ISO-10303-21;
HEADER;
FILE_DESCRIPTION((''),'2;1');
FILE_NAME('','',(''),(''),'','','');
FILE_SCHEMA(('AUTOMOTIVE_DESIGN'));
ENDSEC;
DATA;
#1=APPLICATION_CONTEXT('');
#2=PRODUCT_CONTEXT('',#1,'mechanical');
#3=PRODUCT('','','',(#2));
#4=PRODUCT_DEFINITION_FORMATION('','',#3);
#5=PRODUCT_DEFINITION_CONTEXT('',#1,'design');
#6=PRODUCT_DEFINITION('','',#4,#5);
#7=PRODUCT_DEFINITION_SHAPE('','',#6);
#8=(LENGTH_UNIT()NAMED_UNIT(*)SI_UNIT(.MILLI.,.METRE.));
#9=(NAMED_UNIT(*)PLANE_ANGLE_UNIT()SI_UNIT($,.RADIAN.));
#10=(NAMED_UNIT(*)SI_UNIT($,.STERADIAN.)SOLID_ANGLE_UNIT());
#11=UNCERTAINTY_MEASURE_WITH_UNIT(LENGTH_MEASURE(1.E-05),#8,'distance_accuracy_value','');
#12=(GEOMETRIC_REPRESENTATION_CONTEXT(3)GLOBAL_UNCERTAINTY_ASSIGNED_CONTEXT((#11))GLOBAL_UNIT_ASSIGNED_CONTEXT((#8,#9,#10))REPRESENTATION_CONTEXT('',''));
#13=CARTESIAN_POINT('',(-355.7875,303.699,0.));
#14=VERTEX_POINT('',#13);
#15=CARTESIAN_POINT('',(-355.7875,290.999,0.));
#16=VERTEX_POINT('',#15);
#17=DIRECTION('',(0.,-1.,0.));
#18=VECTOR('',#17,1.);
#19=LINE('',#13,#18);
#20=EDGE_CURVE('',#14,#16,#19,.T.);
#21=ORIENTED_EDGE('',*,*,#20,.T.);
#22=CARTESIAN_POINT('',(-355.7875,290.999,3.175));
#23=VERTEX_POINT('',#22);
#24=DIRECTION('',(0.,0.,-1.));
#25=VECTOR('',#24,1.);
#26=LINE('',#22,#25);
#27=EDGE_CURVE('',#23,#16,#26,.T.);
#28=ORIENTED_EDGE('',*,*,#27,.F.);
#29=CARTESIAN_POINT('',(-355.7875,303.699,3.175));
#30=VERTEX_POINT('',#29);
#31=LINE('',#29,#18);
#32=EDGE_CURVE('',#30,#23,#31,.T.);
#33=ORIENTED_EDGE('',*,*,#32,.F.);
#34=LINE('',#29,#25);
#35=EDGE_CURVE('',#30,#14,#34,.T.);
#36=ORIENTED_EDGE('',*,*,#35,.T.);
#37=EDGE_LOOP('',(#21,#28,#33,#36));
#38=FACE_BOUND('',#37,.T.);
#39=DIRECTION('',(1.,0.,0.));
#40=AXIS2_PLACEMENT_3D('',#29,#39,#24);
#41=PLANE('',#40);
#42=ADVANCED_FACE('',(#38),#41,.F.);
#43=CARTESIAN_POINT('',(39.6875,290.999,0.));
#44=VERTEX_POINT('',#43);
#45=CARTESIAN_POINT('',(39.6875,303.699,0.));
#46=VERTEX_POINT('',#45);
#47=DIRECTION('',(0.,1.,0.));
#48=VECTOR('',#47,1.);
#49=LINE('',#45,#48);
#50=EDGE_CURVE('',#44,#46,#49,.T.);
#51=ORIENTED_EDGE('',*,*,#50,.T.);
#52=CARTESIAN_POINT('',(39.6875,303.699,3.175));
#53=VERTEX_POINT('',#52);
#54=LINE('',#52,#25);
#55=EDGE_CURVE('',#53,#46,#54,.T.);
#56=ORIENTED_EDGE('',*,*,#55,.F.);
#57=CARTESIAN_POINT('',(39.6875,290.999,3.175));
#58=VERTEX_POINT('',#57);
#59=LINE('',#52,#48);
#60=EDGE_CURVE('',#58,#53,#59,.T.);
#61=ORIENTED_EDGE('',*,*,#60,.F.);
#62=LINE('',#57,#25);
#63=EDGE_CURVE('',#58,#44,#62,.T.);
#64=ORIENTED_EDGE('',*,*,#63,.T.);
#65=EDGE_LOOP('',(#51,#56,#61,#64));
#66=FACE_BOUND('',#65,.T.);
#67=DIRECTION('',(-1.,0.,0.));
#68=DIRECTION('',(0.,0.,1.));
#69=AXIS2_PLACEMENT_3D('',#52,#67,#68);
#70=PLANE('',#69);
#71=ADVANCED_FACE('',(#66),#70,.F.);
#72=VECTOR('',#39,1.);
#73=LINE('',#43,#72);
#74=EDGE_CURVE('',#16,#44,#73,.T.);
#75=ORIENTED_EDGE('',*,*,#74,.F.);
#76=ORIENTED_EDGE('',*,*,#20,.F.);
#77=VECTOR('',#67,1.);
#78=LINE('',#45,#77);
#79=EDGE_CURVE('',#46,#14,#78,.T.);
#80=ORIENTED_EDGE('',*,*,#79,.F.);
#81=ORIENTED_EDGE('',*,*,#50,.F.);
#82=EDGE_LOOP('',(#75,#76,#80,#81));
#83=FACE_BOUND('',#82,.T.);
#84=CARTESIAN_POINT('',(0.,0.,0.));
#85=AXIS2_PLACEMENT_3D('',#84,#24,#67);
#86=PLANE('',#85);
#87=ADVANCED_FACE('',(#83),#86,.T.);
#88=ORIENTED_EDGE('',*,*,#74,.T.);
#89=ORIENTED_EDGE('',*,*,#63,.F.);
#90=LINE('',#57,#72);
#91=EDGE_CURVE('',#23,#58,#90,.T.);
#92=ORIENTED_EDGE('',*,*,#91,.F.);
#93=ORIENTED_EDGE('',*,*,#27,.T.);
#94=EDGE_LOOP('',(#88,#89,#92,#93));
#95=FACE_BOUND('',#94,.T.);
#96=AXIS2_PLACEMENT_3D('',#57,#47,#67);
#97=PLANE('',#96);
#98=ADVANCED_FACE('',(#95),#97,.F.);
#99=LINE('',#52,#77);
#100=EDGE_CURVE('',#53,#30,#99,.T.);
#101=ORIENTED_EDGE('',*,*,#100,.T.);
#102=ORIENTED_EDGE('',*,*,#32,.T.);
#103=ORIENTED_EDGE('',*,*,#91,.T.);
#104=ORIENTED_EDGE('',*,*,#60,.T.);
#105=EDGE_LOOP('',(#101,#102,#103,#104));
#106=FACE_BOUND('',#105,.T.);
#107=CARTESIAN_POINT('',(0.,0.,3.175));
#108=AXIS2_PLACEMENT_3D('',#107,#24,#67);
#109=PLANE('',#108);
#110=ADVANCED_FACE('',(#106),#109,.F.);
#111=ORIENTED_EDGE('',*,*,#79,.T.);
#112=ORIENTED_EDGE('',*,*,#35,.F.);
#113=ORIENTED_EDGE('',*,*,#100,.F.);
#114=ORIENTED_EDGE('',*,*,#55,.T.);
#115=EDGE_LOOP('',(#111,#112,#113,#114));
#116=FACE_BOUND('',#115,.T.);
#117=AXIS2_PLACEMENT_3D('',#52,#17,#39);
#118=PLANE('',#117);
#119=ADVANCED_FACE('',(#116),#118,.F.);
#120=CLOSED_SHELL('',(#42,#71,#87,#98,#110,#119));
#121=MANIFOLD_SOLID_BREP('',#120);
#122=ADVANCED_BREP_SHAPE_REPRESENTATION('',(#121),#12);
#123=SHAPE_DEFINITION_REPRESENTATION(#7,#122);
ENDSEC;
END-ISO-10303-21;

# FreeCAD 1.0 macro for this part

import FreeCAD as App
import Part
import Sketcher

V = App.Vector
Q = App.Units.Quantity

doc = App.newDocument("Part")
body = doc.addObject("PartDesign::Body", "Body")

sketch1 = body.newObject("Sketcher::SketchObject", "Sketch")
sketch1.AttachmentSupport = (doc.getObject("XY_Plane"), [""])
sketch1.MapMode = "FlatFace"
sketch1.addGeometry(Part.LineSegment(V(-356, 304, 0), V(-356, 291, 0)), False)
sketch1.addGeometry(Part.LineSegment(V(-356, 291, 0), V(40, 291, 0)), False)
sketch1.addGeometry(Part.LineSegment(V(40, 291, 0), V(40, 304, 0)), False)
sketch1.addGeometry(Part.LineSegment(V(40, 304, 0), V(-356, 304, 0)), False)
sketch1.addConstraint(Sketcher.Constraint("Coincident", 0, 2, 1, 1))
sketch1.addConstraint(Sketcher.Constraint("Coincident", 1, 2, 2, 1))
sketch1.addConstraint(Sketcher.Constraint("Coincident", 2, 2, 3, 1))
sketch1.addConstraint(Sketcher.Constraint("Coincident", 3, 2, 0, 1))
sketch1.addConstraint(Sketcher.Constraint("Vertical", 0))
sketch1.addConstraint(Sketcher.Constraint("Horizontal", 1))
sketch1.addConstraint(Sketcher.Constraint("Vertical", 2))
sketch1.addConstraint(Sketcher.Constraint("Horizontal", 3))
sketch1.addConstraint(Sketcher.Constraint("DistanceY", 0, 2, 0, 1, Q("0.5 in")))
sketch1.addConstraint(Sketcher.Constraint("DistanceX", -1, 1, 1, 2, Q("1.5625 in")))
sketch1.addConstraint(Sketcher.Constraint("DistanceX", 1, 1, 1, 2, 395.475))
sketch1.addConstraint(Sketcher.Constraint("DistanceY", -1, 1, 0, 2, 290.999))
pad1 = body.newObject("PartDesign::Pad", "Pad")
pad1.Profile = sketch1
pad1.Length = Q("0.125 in")

doc.recompute()
